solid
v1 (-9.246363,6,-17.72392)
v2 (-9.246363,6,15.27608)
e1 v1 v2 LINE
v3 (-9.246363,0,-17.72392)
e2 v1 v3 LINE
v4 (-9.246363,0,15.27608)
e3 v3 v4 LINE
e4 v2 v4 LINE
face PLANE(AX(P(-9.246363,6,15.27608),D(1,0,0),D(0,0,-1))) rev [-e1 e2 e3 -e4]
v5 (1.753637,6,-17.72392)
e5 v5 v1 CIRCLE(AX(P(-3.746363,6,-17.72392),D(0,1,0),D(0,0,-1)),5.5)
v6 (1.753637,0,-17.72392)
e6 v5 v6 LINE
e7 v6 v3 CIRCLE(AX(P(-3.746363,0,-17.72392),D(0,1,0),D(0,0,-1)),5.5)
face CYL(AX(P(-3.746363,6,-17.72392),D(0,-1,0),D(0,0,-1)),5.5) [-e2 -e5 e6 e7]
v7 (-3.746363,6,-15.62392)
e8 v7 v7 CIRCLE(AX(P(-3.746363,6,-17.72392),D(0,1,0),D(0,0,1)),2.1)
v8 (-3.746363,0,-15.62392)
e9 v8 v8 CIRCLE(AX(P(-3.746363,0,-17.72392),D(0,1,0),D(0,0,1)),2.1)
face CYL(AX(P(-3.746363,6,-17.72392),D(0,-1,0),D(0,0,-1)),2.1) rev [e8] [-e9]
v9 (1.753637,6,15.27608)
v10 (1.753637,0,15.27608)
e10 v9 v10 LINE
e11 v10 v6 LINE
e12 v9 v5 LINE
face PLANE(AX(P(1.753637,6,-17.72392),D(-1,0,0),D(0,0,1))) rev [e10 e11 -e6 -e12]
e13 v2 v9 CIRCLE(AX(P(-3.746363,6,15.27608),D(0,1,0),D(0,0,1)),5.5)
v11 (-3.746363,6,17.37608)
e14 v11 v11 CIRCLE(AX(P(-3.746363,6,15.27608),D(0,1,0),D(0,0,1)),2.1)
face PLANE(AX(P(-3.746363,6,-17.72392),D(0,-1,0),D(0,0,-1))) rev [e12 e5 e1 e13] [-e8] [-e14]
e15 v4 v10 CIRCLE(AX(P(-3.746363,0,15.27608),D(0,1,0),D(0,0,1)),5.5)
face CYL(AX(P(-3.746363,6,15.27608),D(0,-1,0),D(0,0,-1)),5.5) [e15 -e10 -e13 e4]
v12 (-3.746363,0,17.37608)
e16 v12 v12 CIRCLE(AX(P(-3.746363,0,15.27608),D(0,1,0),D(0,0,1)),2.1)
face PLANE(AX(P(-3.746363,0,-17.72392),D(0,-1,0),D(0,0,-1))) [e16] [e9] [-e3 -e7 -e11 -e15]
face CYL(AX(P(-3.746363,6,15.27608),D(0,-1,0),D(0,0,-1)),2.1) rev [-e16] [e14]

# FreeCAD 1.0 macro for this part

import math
import FreeCAD as App
import Part
import Sketcher

V = App.Vector

doc = App.newDocument("Part")
body = doc.addObject("PartDesign::Body", "Body")

sketch1 = doc.addObject("Sketcher::SketchObject", "Sketch")
body.addObject(sketch1)
sketch1.AttachmentSupport = (doc.XZ_Plane, [""])
sketch1.MapMode = "FlatFace"
sketch1.addGeometry([
    Part.LineSegment(V(1.8, 15.3, 0), V(1.8, -17.7, 0)),
    Part.ArcOfCircle(Part.Circle(V(-3.7, -17.7, 0), V(0, 0, 1), 5.5), math.radians(180), math.radians(360)),
    Part.LineSegment(V(-9.2, -17.7, 0), V(-9.2, 15.3, 0)),
    Part.ArcOfCircle(Part.Circle(V(-3.7, 15.3, 0), V(0, 0, 1), 5.5), math.radians(0), math.radians(180)),
    Part.Circle(V(-3.7, 15.3, 0), V(0, 0, 1), 2.1),
    Part.Circle(V(-3.7, -17.7, 0), V(0, 0, 1), 2.1),
], False)
sketch1.addConstraint([
    Sketcher.Constraint("Tangent", 0, 2, 1, 2),
    Sketcher.Constraint("Tangent", 1, 1, 2, 1),
    Sketcher.Constraint("Tangent", 2, 2, 3, 2),
    Sketcher.Constraint("Tangent", 3, 1, 0, 1),
    Sketcher.Constraint("Vertical", 0),
    Sketcher.Constraint("Vertical", 2),
    Sketcher.Constraint("Coincident", 4, 3, 3, 3),
    Sketcher.Constraint("Coincident", 5, 3, 1, 3),
    Sketcher.Constraint("Equal", 4, 5),
    Sketcher.Constraint("Diameter", 4, 4.2),
    Sketcher.Constraint("Radius", 1, 5.5),
    Sketcher.Constraint("DistanceY", 0, 2, 0, 1, 33.0),
    Sketcher.Constraint("DistanceY", 1, 3, -1, 1, 17.72392),
    Sketcher.Constraint("DistanceX", 1, 3, -1, 1, 3.746363),
])
pad1 = doc.addObject("PartDesign::Pad", "Pad")
body.addObject(pad1)
pad1.Profile = sketch1
pad1.Length = 6
pad1.Reversed = True

doc.recompute()
